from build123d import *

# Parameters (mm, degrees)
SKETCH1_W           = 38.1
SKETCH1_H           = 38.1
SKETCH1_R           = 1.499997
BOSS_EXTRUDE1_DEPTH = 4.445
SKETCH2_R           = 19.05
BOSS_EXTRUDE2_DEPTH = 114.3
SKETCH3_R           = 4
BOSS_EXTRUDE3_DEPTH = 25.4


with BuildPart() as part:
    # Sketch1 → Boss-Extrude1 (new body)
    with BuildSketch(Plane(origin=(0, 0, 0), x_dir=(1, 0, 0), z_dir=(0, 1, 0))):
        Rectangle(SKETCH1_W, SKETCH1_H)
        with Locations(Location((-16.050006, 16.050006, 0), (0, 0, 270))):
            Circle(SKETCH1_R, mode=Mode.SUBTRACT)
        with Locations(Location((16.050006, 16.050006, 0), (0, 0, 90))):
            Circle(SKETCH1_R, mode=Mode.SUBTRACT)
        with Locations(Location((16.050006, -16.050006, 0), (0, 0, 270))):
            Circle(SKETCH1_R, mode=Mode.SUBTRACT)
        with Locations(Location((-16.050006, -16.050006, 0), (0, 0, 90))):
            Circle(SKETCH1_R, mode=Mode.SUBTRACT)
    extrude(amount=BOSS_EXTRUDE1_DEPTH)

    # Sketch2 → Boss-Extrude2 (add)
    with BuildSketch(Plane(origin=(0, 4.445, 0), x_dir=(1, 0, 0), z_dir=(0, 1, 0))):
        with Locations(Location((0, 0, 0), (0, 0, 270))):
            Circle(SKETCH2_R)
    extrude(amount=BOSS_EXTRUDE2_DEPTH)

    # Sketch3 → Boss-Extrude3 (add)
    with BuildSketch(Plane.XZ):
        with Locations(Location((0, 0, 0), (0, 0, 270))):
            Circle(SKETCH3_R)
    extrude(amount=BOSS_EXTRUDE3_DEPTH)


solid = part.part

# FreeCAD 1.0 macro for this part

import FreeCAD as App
import Part
import Sketcher
Q = App.Units.Quantity

doc = App.newDocument("Part")
body = doc.addObject("PartDesign::Body", "Body")

sketch1 = body.newObject("Sketcher::SketchObject", "Sketch")
sketch1.AttachmentSupport = (doc.getObject("XZ_Plane"), [""])
sketch1.MapMode = "FlatFace"
sketch1.addGeometry([
    Part.LineSegment(App.Vector(-19.1, -19.1, 0), App.Vector(-19.1, 19.1, 0)),
    Part.LineSegment(App.Vector(-19.1, 19.1, 0), App.Vector(19.1, 19.1, 0)),
    Part.LineSegment(App.Vector(19.1, 19.1, 0), App.Vector(19.1, -19.1, 0)),
    Part.LineSegment(App.Vector(19.1, -19.1, 0), App.Vector(-19.1, -19.1, 0)),
    Part.Circle(App.Vector(-16.1, 16.1, 0), App.Vector(0, 0, 1), 1.5),
    Part.Circle(App.Vector(16.1, 16.1, 0), App.Vector(0, 0, 1), 1.5),
    Part.Circle(App.Vector(-16.1, -16.1, 0), App.Vector(0, 0, 1), 1.5),
    Part.Circle(App.Vector(16.1, -16.1, 0), App.Vector(0, 0, 1), 1.5),
], False)
sketch1.addConstraint([
    Sketcher.Constraint("Coincident", 0, 2, 1, 1),
    Sketcher.Constraint("Coincident", 1, 2, 2, 1),
    Sketcher.Constraint("Coincident", 2, 2, 3, 1),
    Sketcher.Constraint("Coincident", 3, 2, 0, 1),
    Sketcher.Constraint("Vertical", 0),
    Sketcher.Constraint("Horizontal", 1),
    Sketcher.Constraint("Vertical", 2),
    Sketcher.Constraint("Horizontal", 3),
    Sketcher.Constraint("Equal", 4, 5),
    Sketcher.Constraint("Equal", 5, 6),
    Sketcher.Constraint("Equal", 6, 7),
    Sketcher.Constraint("Symmetric", 5, 3, 6, 3, -1, 1),
    Sketcher.Constraint("Symmetric", 4, 3, 7, 3, -1, 1),
    Sketcher.Constraint("Symmetric", 0, 2, 2, 2, -1, 1),
    Sketcher.Constraint("Symmetric", 4, 3, 5, 3, -2),
    Sketcher.Constraint("Equal", 3, 0),
    Sketcher.Constraint("DistanceX", 1, 1, 1, 2, Q("1.5 in")),
    Sketcher.Constraint("Diameter", 4, 2.999994),
    Sketcher.Constraint("DistanceX", 4, 3, -1, 1, 16.050006),
    Sketcher.Constraint("DistanceY", -1, 1, 4, 3, 16.050006),
])
pad1 = body.newObject("PartDesign::Pad", "Pad")
pad1.Profile = sketch1
pad1.Length = Q("0.175 in")
pad1.Reversed = True

sketch2 = body.newObject("Sketcher::SketchObject", "Sketch001")
sketch2.AttachmentSupport = (doc.getObject("XZ_Plane"), [""])
sketch2.MapMode = "FlatFace"
sketch2.AttachmentOffset = App.Placement(App.Vector(0, 0, -0.175 * 25.4), App.Rotation())
sketch2.addGeometry(Part.Circle(App.Vector(0, 0, 0), App.Vector(0, 0, 1), 19), False)
sketch2.addConstraint([
    Sketcher.Constraint("Coincident", 0, 3, -1, 1),
    Sketcher.Constraint("Diameter", 0, Q("1.5 in")),
])
pad2 = body.newObject("PartDesign::Pad", "Pad001")
pad2.Profile = sketch2
pad2.Length = Q("4.5 in")
pad2.Reversed = True

sketch3 = body.newObject("Sketcher::SketchObject", "Sketch002")
sketch3.AttachmentSupport = (doc.getObject("XZ_Plane"), [""])
sketch3.MapMode = "FlatFace"
sketch3.addGeometry(Part.Circle(App.Vector(0, 0, 0), App.Vector(0, 0, 1), 4), False)
sketch3.addConstraint([
    Sketcher.Constraint("Coincident", 0, 3, -1, 1),
    Sketcher.Constraint("Diameter", 0, 8.0),
])
pad3 = body.newObject("PartDesign::Pad", "Pad002")
pad3.Profile = sketch3
pad3.Length = Q("1 in")

doc.recompute()
